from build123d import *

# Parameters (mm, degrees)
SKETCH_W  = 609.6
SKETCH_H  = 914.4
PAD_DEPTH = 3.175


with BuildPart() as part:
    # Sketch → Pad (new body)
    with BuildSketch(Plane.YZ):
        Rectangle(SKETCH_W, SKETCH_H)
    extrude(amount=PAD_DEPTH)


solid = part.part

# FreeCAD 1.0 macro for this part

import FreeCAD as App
import Part
import Sketcher

V = App.Vector
Q = App.Units.Quantity


def add_polygon(sketch, points):
    """Adds a closed chain of lines whose ends are joined by coincident constraints."""
    first, n = sketch.GeometryCount, len(points)
    for a, b in zip(points, points[1:] + points[:1]):
        sketch.addGeometry(Part.LineSegment(App.Vector(*a, 0), App.Vector(*b, 0)), False)
    for i in range(n):
        sketch.addConstraint(Sketcher.Constraint("Coincident", first + i, 2, first + (i + 1) % n, 1))

doc = App.newDocument("Part")
params = doc.addObject("Spreadsheet::Sheet", "Params")
for row, (alias, value) in enumerate([
    ("sketch1_width", "24 in"),
    ("sketch1_height", "36 in"),
    ("pad1_length", "0.125 in"),
], start=1):
    params.set(f"A{row}", alias)
    params.set(f"B{row}", "=" + value)
    params.setAlias(f"B{row}", alias)

body = doc.addObject("PartDesign::Body", "Body")

sketch1 = body.newObject("Sketcher::SketchObject", "Sketch")
sketch1.AttachmentSupport = (doc.getObject("YZ_Plane"), [""])
sketch1.MapMode = "FlatFace"
add_polygon(sketch1, [(-305, 457), (-305, -457), (305, -457), (305, 457)])
sketch1.addConstraint([
    Sketcher.Constraint("Vertical", 0),
    Sketcher.Constraint("Horizontal", 1),
    Sketcher.Constraint("Vertical", 2),
    Sketcher.Constraint("Horizontal", 3),
    Sketcher.Constraint("Symmetric", 0, 2, 2, 2, -1, 1),
    Sketcher.Constraint("DistanceX", 1, 1, 1, 2, Q("24 in")),
    Sketcher.Constraint("DistanceY", 0, 2, 0, 1, Q("36 in")),
])
sketch1.setExpression("Constraints[9]", "Params.sketch1_width")
sketch1.setExpression("Constraints[10]", "Params.sketch1_height")
pad1 = body.newObject("PartDesign::Pad", "Pad")
pad1.Profile = sketch1
pad1.setExpression("Length", "Params.pad1_length")

doc.recompute()
